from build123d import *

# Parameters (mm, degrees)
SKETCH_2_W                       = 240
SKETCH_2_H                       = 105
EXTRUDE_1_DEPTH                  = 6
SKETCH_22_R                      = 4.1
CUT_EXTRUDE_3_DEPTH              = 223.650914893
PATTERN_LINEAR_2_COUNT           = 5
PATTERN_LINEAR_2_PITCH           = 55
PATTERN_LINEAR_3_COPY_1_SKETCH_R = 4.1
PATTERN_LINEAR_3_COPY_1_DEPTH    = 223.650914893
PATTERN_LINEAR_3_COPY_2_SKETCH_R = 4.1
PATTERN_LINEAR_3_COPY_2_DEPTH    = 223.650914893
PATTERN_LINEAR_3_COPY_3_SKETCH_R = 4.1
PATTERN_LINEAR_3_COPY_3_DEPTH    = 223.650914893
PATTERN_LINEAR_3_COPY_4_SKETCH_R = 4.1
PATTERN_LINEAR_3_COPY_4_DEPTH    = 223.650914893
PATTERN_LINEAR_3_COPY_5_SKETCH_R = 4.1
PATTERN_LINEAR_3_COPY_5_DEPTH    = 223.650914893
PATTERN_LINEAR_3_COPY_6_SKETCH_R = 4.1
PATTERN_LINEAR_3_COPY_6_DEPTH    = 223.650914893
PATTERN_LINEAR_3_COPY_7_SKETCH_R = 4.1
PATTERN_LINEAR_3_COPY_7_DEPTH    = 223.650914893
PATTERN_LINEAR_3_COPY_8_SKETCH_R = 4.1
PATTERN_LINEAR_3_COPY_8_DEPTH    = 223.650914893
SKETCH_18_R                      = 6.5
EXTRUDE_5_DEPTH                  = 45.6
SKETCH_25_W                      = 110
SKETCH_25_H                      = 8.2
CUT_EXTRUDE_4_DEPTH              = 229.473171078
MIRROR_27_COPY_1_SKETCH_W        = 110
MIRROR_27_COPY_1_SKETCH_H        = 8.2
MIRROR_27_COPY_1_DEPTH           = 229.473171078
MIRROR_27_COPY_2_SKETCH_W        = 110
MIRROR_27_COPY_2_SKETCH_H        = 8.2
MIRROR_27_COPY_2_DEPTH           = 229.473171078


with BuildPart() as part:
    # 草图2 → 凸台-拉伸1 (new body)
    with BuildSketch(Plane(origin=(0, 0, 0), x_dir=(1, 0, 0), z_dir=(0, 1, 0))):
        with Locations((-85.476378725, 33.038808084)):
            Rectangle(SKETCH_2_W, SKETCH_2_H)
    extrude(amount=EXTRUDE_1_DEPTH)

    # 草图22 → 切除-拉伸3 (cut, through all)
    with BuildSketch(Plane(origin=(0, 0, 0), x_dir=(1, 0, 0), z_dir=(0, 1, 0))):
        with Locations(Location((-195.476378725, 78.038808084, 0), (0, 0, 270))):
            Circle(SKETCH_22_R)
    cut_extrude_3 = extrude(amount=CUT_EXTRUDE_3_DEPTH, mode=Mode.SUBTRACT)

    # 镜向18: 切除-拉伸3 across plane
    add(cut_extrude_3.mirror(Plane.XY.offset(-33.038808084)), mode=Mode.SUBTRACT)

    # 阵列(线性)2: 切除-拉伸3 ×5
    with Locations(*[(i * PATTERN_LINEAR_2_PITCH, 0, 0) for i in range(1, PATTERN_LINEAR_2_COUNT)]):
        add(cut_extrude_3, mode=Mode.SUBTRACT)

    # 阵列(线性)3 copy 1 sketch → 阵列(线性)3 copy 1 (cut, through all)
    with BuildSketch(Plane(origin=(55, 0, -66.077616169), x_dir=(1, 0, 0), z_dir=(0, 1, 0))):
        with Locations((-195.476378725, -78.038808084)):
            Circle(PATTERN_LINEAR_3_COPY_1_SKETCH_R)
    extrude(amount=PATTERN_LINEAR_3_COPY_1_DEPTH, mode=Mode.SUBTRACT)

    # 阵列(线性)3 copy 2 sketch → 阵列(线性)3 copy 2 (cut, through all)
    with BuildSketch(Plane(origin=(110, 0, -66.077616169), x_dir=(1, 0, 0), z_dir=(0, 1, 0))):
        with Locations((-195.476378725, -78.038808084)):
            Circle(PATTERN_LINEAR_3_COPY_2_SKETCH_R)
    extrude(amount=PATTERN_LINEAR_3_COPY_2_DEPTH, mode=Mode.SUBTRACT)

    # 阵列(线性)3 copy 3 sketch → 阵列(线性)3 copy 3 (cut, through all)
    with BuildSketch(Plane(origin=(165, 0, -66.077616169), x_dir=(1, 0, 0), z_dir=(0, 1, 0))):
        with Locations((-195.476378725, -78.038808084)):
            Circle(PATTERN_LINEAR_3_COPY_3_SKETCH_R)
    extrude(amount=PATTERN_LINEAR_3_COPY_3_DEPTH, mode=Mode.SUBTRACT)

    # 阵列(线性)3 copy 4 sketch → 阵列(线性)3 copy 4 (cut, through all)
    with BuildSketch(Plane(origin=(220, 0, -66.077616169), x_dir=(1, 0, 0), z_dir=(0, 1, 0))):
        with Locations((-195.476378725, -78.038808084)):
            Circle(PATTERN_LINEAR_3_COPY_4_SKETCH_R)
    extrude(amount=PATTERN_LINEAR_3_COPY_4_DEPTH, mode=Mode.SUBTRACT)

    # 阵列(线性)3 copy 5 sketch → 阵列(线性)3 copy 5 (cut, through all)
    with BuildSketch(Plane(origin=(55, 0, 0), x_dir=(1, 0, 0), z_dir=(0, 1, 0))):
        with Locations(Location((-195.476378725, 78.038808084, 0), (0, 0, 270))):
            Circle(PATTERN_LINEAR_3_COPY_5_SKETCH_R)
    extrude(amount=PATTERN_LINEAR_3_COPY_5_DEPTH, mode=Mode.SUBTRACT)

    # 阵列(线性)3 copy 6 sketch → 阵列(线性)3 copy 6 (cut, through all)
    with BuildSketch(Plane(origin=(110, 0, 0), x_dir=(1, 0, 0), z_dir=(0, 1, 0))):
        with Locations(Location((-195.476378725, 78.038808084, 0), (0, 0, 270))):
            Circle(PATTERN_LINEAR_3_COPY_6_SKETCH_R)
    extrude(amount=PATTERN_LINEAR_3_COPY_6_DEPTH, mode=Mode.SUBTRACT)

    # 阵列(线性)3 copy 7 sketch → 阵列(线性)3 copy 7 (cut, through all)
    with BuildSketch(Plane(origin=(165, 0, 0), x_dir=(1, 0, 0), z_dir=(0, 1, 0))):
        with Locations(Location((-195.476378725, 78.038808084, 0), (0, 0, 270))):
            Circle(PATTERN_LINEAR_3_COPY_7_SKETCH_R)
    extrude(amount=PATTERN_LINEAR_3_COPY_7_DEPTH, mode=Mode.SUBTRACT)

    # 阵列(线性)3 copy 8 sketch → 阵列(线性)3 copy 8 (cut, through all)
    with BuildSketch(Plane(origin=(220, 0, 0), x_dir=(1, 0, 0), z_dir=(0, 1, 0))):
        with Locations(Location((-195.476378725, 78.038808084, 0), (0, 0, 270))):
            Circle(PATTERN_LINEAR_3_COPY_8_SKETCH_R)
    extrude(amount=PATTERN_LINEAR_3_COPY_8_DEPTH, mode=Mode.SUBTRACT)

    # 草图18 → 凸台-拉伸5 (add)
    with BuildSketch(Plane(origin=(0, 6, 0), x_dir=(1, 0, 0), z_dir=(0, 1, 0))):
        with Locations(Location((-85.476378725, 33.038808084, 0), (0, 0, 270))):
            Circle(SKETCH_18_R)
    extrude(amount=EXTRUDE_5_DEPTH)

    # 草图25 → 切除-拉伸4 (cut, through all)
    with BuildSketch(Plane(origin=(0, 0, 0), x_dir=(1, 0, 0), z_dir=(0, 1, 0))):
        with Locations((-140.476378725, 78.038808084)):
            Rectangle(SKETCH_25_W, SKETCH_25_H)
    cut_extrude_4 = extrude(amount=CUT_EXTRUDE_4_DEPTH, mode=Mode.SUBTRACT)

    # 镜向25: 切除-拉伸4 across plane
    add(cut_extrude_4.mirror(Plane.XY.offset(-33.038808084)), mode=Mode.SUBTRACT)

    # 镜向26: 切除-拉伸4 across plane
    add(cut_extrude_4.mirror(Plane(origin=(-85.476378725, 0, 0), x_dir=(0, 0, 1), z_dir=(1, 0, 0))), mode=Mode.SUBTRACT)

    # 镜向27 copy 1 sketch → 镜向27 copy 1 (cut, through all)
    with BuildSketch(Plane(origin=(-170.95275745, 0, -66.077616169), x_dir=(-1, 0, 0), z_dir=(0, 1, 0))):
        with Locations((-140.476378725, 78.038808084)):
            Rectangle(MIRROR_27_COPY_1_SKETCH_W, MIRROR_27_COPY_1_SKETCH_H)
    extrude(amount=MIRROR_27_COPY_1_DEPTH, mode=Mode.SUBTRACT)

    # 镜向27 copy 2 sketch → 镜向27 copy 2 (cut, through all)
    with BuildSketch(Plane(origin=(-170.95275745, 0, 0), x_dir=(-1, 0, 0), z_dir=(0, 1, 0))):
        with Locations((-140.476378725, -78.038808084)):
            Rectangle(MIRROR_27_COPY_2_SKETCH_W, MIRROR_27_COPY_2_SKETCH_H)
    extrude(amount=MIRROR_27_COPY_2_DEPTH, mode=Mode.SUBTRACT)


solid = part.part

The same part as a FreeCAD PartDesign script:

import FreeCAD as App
import Part
import Sketcher
from FreeCAD import Vector
Q = App.Units.Quantity

doc = App.newDocument("Part")
body = doc.addObject("PartDesign::Body", "Body")

# Sketch on XZ plane
sketch1 = doc.addObject("Sketcher::SketchObject", "Sketch")
body.addObject(sketch1)
sketch1.AttachmentSupport = (doc.XZ_Plane, [""])
sketch1.MapMode = "FlatFace"
sketch1.addGeometry([
    Part.LineSegment(Vector(-205.476379, -85.538808, 0), Vector(-205.476379, 19.461192, 0)),
    Part.LineSegment(Vector(-205.476379, 19.461192, 0), Vector(34.523621, 19.461192, 0)),
    Part.LineSegment(Vector(34.523621, 19.461192, 0), Vector(34.523621, -85.538808, 0)),
    Part.LineSegment(Vector(34.523621, -85.538808, 0), Vector(-205.476379, -85.538808, 0)),
], False)
sketch1.addConstraint([
    Sketcher.Constraint("Coincident", 0, 2, 1, 1),
    Sketcher.Constraint("Coincident", 1, 2, 2, 1),
    Sketcher.Constraint("Coincident", 2, 2, 3, 1),
    Sketcher.Constraint("Coincident", 3, 2, 0, 1),
    Sketcher.Constraint("Vertical", 0),
    Sketcher.Constraint("Horizontal", 1),
    Sketcher.Constraint("Vertical", 2),
    Sketcher.Constraint("Horizontal", 3),
    Sketcher.Constraint("DistanceX", 1, 1, 1, 2, Q("240 mm")),
    Sketcher.Constraint("DistanceY", 0, 1, 0, 2, Q("105 mm")),
    Sketcher.Constraint("DistanceX", 0, 2, -1, 1, Q("205.476379 mm")),
    Sketcher.Constraint("DistanceY", -1, 1, 0, 2, Q("19.461192 mm")),
])
pad1 = doc.addObject("PartDesign::Pad", "Pad")
body.addObject(pad1)
pad1.Profile = sketch1
pad1.Length = 6
pad1.Reversed = True

# Sketch on XZ plane
sketch2 = doc.addObject("Sketcher::SketchObject", "Sketch001")
body.addObject(sketch2)
sketch2.AttachmentSupport = (doc.XZ_Plane, [""])
sketch2.MapMode = "FlatFace"
sketch2.addGeometry(Part.Circle(Vector(-195.476379, -78.038808, 0), Vector(0, 0, 1), 4.1), False)
sketch2.addConstraint([
    Sketcher.Constraint("Diameter", 0, Q("8.2 mm")),
    Sketcher.Constraint("DistanceX", 0, 3, -1, 1, Q("195.476379 mm")),
    Sketcher.Constraint("DistanceY", 0, 3, -1, 1, Q("78.038808 mm")),
])
pocket1 = doc.addObject("PartDesign::Pocket", "Pocket")
body.addObject(pocket1)
pocket1.Profile = sketch2
pocket1.Type = "ThroughAll"
doc.recompute()

datumplane = doc.addObject("PartDesign::Plane", "DatumPlane")
body.addObject(datumplane)
datumplane.AttachmentSupport = (doc.XY_Plane, [""])
datumplane.MapMode = "FlatFace"
datumplane.AttachmentOffset = App.Placement(Vector(0, 0, -33.038808), App.Rotation())
mirrored = doc.addObject("PartDesign::Mirrored", "Mirrored")
body.addObject(mirrored)
mirrored.Originals = [pocket1]
mirrored.MirrorPlane = (datumplane, [""])
body.Tip = mirrored
doc.recompute()

linearpattern = doc.addObject("PartDesign::LinearPattern", "LinearPattern")
body.addObject(linearpattern)
linearpattern.Originals = [pocket1]
linearpattern.Direction = (doc.X_Axis, [""])
linearpattern.Mode = "offset"
linearpattern.Offset = 55
linearpattern.Occurrences = 5
body.Tip = linearpattern

# Sketch on XZ plane
sketch3 = doc.addObject("Sketcher::SketchObject", "Sketch002")
body.addObject(sketch3)
sketch3.AttachmentSupport = (doc.XZ_Plane, [""])
sketch3.MapMode = "FlatFace"
sketch3.addGeometry(Part.Circle(Vector(-140.476379, 11.961192, 0), Vector(0, 0, 1), 4.1), False)
sketch3.addConstraint([
    Sketcher.Constraint("Diameter", 0, Q("8.2 mm")),
    Sketcher.Constraint("DistanceX", 0, 3, -1, 1, Q("140.476379 mm")),
    Sketcher.Constraint("DistanceY", -1, 1, 0, 3, Q("11.961192 mm")),
])
pocket2 = doc.addObject("PartDesign::Pocket", "Pocket001")
body.addObject(pocket2)
pocket2.Profile = sketch3
pocket2.Type = "ThroughAll"

# Sketch on XZ plane
sketch4 = doc.addObject("Sketcher::SketchObject", "Sketch003")
body.addObject(sketch4)
sketch4.AttachmentSupport = (doc.XZ_Plane, [""])
sketch4.MapMode = "FlatFace"
sketch4.addGeometry(Part.Circle(Vector(-85.476379, 11.961192, 0), Vector(0, 0, 1), 4.1), False)
sketch4.addConstraint([
    Sketcher.Constraint("Diameter", 0, Q("8.2 mm")),
    Sketcher.Constraint("DistanceX", 0, 3, -1, 1, Q("85.476379 mm")),
    Sketcher.Constraint("DistanceY", -1, 1, 0, 3, Q("11.961192 mm")),
])
pocket3 = doc.addObject("PartDesign::Pocket", "Pocket002")
body.addObject(pocket3)
pocket3.Profile = sketch4
pocket3.Type = "ThroughAll"

# Sketch on XZ plane
sketch5 = doc.addObject("Sketcher::SketchObject", "Sketch004")
body.addObject(sketch5)
sketch5.AttachmentSupport = (doc.XZ_Plane, [""])
sketch5.MapMode = "FlatFace"
sketch5.addGeometry(Part.Circle(Vector(-30.476379, 11.961192, 0), Vector(0, 0, 1), 4.1), False)
sketch5.addConstraint([
    Sketcher.Constraint("Diameter", 0, Q("8.2 mm")),
    Sketcher.Constraint("DistanceX", 0, 3, -1, 1, Q("30.476379 mm")),
    Sketcher.Constraint("DistanceY", -1, 1, 0, 3, Q("11.961192 mm")),
])
pocket4 = doc.addObject("PartDesign::Pocket", "Pocket003")
body.addObject(pocket4)
pocket4.Profile = sketch5
pocket4.Type = "ThroughAll"

# Sketch on XZ plane
sketch6 = doc.addObject("Sketcher::SketchObject", "Sketch005")
body.addObject(sketch6)
sketch6.AttachmentSupport = (doc.XZ_Plane, [""])
sketch6.MapMode = "FlatFace"
sketch6.addGeometry(Part.Circle(Vector(24.523621, 11.961192, 0), Vector(0, 0, 1), 4.1), False)
sketch6.addConstraint([
    Sketcher.Constraint("Diameter", 0, Q("8.2 mm")),
    Sketcher.Constraint("DistanceX", -1, 1, 0, 3, Q("24.523621 mm")),
    Sketcher.Constraint("DistanceY", -1, 1, 0, 3, Q("11.961192 mm")),
])
pocket5 = doc.addObject("PartDesign::Pocket", "Pocket004")
body.addObject(pocket5)
pocket5.Profile = sketch6
pocket5.Type = "ThroughAll"

# Sketch on XZ plane
sketch7 = doc.addObject("Sketcher::SketchObject", "Sketch006")
body.addObject(sketch7)
sketch7.AttachmentSupport = (doc.XZ_Plane, [""])
sketch7.MapMode = "FlatFace"
sketch7.addGeometry(Part.Circle(Vector(-140.476379, -78.038808, 0), Vector(0, 0, 1), 4.1), False)
sketch7.addConstraint([
    Sketcher.Constraint("Diameter", 0, Q("8.2 mm")),
    Sketcher.Constraint("DistanceX", 0, 3, -1, 1, Q("140.476379 mm")),
    Sketcher.Constraint("DistanceY", 0, 3, -1, 1, Q("78.038808 mm")),
])
pocket6 = doc.addObject("PartDesign::Pocket", "Pocket005")
body.addObject(pocket6)
pocket6.Profile = sketch7
pocket6.Type = "ThroughAll"

# Sketch on XZ plane
sketch8 = doc.addObject("Sketcher::SketchObject", "Sketch007")
body.addObject(sketch8)
sketch8.AttachmentSupport = (doc.XZ_Plane, [""])
sketch8.MapMode = "FlatFace"
sketch8.addGeometry(Part.Circle(Vector(-85.476379, -78.038808, 0), Vector(0, 0, 1), 4.1), False)
sketch8.addConstraint([
    Sketcher.Constraint("Diameter", 0, Q("8.2 mm")),
    Sketcher.Constraint("DistanceX", 0, 3, -1, 1, Q("85.476379 mm")),
    Sketcher.Constraint("DistanceY", 0, 3, -1, 1, Q("78.038808 mm")),
])
pocket7 = doc.addObject("PartDesign::Pocket", "Pocket006")
body.addObject(pocket7)
pocket7.Profile = sketch8
pocket7.Type = "ThroughAll"

# Sketch on XZ plane
sketch9 = doc.addObject("Sketcher::SketchObject", "Sketch008")
body.addObject(sketch9)
sketch9.AttachmentSupport = (doc.XZ_Plane, [""])
sketch9.MapMode = "FlatFace"
sketch9.addGeometry(Part.Circle(Vector(-30.476379, -78.038808, 0), Vector(0, 0, 1), 4.1), False)
sketch9.addConstraint([
    Sketcher.Constraint("Diameter", 0, Q("8.2 mm")),
    Sketcher.Constraint("DistanceX", 0, 3, -1, 1, Q("30.476379 mm")),
    Sketcher.Constraint("DistanceY", 0, 3, -1, 1, Q("78.038808 mm")),
])
pocket8 = doc.addObject("PartDesign::Pocket", "Pocket007")
body.addObject(pocket8)
pocket8.Profile = sketch9
pocket8.Type = "ThroughAll"

# Sketch on XZ plane
sketch10 = doc.addObject("Sketcher::SketchObject", "Sketch009")
body.addObject(sketch10)
sketch10.AttachmentSupport = (doc.XZ_Plane, [""])
sketch10.MapMode = "FlatFace"
sketch10.addGeometry(Part.Circle(Vector(24.523621, -78.038808, 0), Vector(0, 0, 1), 4.1), False)
sketch10.addConstraint([
    Sketcher.Constraint("Diameter", 0, Q("8.2 mm")),
    Sketcher.Constraint("DistanceX", -1, 1, 0, 3, Q("24.523621 mm")),
    Sketcher.Constraint("DistanceY", 0, 3, -1, 1, Q("78.038808 mm")),
])
pocket9 = doc.addObject("PartDesign::Pocket", "Pocket008")
body.addObject(pocket9)
pocket9.Profile = sketch10
pocket9.Type = "ThroughAll"

# Sketch on XZ plane
sketch11 = doc.addObject("Sketcher::SketchObject", "Sketch010")
body.addObject(sketch11)
sketch11.AttachmentSupport = (doc.XZ_Plane, [""])
sketch11.MapMode = "FlatFace"
sketch11.AttachmentOffset = App.Placement(Vector(0, 0, -6), App.Rotation())
sketch11.addGeometry(Part.Circle(Vector(-85.476379, -33.038808, 0), Vector(0, 0, 1), 6.5), False)
sketch11.addConstraint([
    Sketcher.Constraint("Diameter", 0, Q("13 mm")),
    Sketcher.Constraint("DistanceX", 0, 3, -1, 1, Q("85.476379 mm")),
    Sketcher.Constraint("DistanceY", 0, 3, -1, 1, Q("33.038808 mm")),
])
pad2 = doc.addObject("PartDesign::Pad", "Pad001")
body.addObject(pad2)
pad2.Profile = sketch11
pad2.Length = 45.6
pad2.Reversed = True

# Sketch on XZ plane
sketch12 = doc.addObject("Sketcher::SketchObject", "Sketch011")
body.addObject(sketch12)
sketch12.AttachmentSupport = (doc.XZ_Plane, [""])
sketch12.MapMode = "FlatFace"
sketch12.addGeometry([
    Part.LineSegment(Vector(-195.476379, -82.138808, 0), Vector(-195.476379, -73.938808, 0)),
    Part.LineSegment(Vector(-195.476379, -73.938808, 0), Vector(-85.476379, -73.938808, 0)),
    Part.LineSegment(Vector(-85.476379, -73.938808, 0), Vector(-85.476379, -82.138808, 0)),
    Part.LineSegment(Vector(-85.476379, -82.138808, 0), Vector(-195.476379, -82.138808, 0)),
], False)
sketch12.addConstraint([
    Sketcher.Constraint("Coincident", 0, 2, 1, 1),
    Sketcher.Constraint("Coincident", 1, 2, 2, 1),
    Sketcher.Constraint("Coincident", 2, 2, 3, 1),
    Sketcher.Constraint("Coincident", 3, 2, 0, 1),
    Sketcher.Constraint("Vertical", 0),
    Sketcher.Constraint("Horizontal", 1),
    Sketcher.Constraint("Vertical", 2),
    Sketcher.Constraint("Horizontal", 3),
    Sketcher.Constraint("DistanceX", 1, 1, 1, 2, Q("110 mm")),
    Sketcher.Constraint("DistanceY", 0, 1, 0, 2, Q("8.2 mm")),
    Sketcher.Constraint("DistanceX", 0, 2, -1, 1, Q("195.476379 mm")),
    Sketcher.Constraint("DistanceY", 0, 2, -1, 1, Q("73.938808 mm")),
])
pocket10 = doc.addObject("PartDesign::Pocket", "Pocket009")
body.addObject(pocket10)
pocket10.Profile = sketch12
pocket10.Type = "ThroughAll"
doc.recompute()

datumplane2 = doc.addObject("PartDesign::Plane", "DatumPlane001")
body.addObject(datumplane2)
datumplane2.AttachmentSupport = (doc.XY_Plane, [""])
datumplane2.MapMode = "FlatFace"
datumplane2.AttachmentOffset = App.Placement(Vector(0, 0, -33.038808), App.Rotation())
mirrored2 = doc.addObject("PartDesign::Mirrored", "Mirrored001")
body.addObject(mirrored2)
mirrored2.Originals = [pocket10]
mirrored2.MirrorPlane = (datumplane2, [""])
body.Tip = mirrored2
doc.recompute()

datumplane3 = doc.addObject("PartDesign::Plane", "DatumPlane002")
body.addObject(datumplane3)
datumplane3.AttachmentSupport = (doc.YZ_Plane, [""])
datumplane3.MapMode = "FlatFace"
datumplane3.AttachmentOffset = App.Placement(Vector(0, 0, -85.476379), App.Rotation())
mirrored3 = doc.addObject("PartDesign::Mirrored", "Mirrored002")
body.addObject(mirrored3)
mirrored3.Originals = [pocket10]
mirrored3.MirrorPlane = (datumplane3, [""])
body.Tip = mirrored3

# Sketch on XZ plane
sketch13 = doc.addObject("Sketcher::SketchObject", "Sketch012")
body.addObject(sketch13)
sketch13.AttachmentSupport = (doc.XZ_Plane, [""])
sketch13.MapMode = "FlatFace"
sketch13.addGeometry([
    Part.LineSegment(Vector(24.523621, 16.061192, 0), Vector(24.523621, 7.861192, 0)),
    Part.LineSegment(Vector(24.523621, 7.861192, 0), Vector(-85.476379, 7.861192, 0)),
    Part.LineSegment(Vector(-85.476379, 7.861192, 0), Vector(-85.476379, 16.061192, 0)),
    Part.LineSegment(Vector(-85.476379, 16.061192, 0), Vector(24.523621, 16.061192, 0)),
], False)
sketch13.addConstraint([
    Sketcher.Constraint("Coincident", 0, 2, 1, 1),
    Sketcher.Constraint("Coincident", 1, 2, 2, 1),
    Sketcher.Constraint("Coincident", 2, 2, 3, 1),
    Sketcher.Constraint("Coincident", 3, 2, 0, 1),
    Sketcher.Constraint("Vertical", 0),
    Sketcher.Constraint("Horizontal", 1),
    Sketcher.Constraint("Vertical", 2),
    Sketcher.Constraint("Horizontal", 3),
    Sketcher.Constraint("DistanceX", 1, 2, 1, 1, Q("110 mm")),
    Sketcher.Constraint("DistanceY", 0, 2, 0, 1, Q("8.2 mm")),
    Sketcher.Constraint("DistanceX", -1, 1, 0, 2, Q("24.523621 mm")),
    Sketcher.Constraint("DistanceY", -1, 1, 0, 2, Q("7.861192 mm")),
])
pocket11 = doc.addObject("PartDesign::Pocket", "Pocket010")
body.addObject(pocket11)
pocket11.Profile = sketch13
pocket11.Type = "ThroughAll"

# Sketch on XZ plane
sketch14 = doc.addObject("Sketcher::SketchObject", "Sketch013")
body.addObject(sketch14)
sketch14.AttachmentSupport = (doc.XZ_Plane, [""])
sketch14.MapMode = "FlatFace"
sketch14.addGeometry([
    Part.LineSegment(Vector(24.523621, -73.938808, 0), Vector(24.523621, -82.138808, 0)),
    Part.LineSegment(Vector(24.523621, -82.138808, 0), Vector(-85.476379, -82.138808, 0)),
    Part.LineSegment(Vector(-85.476379, -82.138808, 0), Vector(-85.476379, -73.938808, 0)),
    Part.LineSegment(Vector(-85.476379, -73.938808, 0), Vector(24.523621, -73.938808, 0)),
], False)
sketch14.addConstraint([
    Sketcher.Constraint("Coincident", 0, 2, 1, 1),
    Sketcher.Constraint("Coincident", 1, 2, 2, 1),
    Sketcher.Constraint("Coincident", 2, 2, 3, 1),
    Sketcher.Constraint("Coincident", 3, 2, 0, 1),
    Sketcher.Constraint("Vertical", 0),
    Sketcher.Constraint("Horizontal", 1),
    Sketcher.Constraint("Vertical", 2),
    Sketcher.Constraint("Horizontal", 3),
    Sketcher.Constraint("DistanceX", 1, 2, 1, 1, Q("110 mm")),
    Sketcher.Constraint("DistanceY", 0, 2, 0, 1, Q("8.2 mm")),
    Sketcher.Constraint("DistanceX", -1, 1, 0, 2, Q("24.523621 mm")),
    Sketcher.Constraint("DistanceY", 0, 2, -1, 1, Q("82.138808 mm")),
])
pocket12 = doc.addObject("PartDesign::Pocket", "Pocket011")
body.addObject(pocket12)
pocket12.Profile = sketch14
pocket12.Type = "ThroughAll"

doc.recompute()
